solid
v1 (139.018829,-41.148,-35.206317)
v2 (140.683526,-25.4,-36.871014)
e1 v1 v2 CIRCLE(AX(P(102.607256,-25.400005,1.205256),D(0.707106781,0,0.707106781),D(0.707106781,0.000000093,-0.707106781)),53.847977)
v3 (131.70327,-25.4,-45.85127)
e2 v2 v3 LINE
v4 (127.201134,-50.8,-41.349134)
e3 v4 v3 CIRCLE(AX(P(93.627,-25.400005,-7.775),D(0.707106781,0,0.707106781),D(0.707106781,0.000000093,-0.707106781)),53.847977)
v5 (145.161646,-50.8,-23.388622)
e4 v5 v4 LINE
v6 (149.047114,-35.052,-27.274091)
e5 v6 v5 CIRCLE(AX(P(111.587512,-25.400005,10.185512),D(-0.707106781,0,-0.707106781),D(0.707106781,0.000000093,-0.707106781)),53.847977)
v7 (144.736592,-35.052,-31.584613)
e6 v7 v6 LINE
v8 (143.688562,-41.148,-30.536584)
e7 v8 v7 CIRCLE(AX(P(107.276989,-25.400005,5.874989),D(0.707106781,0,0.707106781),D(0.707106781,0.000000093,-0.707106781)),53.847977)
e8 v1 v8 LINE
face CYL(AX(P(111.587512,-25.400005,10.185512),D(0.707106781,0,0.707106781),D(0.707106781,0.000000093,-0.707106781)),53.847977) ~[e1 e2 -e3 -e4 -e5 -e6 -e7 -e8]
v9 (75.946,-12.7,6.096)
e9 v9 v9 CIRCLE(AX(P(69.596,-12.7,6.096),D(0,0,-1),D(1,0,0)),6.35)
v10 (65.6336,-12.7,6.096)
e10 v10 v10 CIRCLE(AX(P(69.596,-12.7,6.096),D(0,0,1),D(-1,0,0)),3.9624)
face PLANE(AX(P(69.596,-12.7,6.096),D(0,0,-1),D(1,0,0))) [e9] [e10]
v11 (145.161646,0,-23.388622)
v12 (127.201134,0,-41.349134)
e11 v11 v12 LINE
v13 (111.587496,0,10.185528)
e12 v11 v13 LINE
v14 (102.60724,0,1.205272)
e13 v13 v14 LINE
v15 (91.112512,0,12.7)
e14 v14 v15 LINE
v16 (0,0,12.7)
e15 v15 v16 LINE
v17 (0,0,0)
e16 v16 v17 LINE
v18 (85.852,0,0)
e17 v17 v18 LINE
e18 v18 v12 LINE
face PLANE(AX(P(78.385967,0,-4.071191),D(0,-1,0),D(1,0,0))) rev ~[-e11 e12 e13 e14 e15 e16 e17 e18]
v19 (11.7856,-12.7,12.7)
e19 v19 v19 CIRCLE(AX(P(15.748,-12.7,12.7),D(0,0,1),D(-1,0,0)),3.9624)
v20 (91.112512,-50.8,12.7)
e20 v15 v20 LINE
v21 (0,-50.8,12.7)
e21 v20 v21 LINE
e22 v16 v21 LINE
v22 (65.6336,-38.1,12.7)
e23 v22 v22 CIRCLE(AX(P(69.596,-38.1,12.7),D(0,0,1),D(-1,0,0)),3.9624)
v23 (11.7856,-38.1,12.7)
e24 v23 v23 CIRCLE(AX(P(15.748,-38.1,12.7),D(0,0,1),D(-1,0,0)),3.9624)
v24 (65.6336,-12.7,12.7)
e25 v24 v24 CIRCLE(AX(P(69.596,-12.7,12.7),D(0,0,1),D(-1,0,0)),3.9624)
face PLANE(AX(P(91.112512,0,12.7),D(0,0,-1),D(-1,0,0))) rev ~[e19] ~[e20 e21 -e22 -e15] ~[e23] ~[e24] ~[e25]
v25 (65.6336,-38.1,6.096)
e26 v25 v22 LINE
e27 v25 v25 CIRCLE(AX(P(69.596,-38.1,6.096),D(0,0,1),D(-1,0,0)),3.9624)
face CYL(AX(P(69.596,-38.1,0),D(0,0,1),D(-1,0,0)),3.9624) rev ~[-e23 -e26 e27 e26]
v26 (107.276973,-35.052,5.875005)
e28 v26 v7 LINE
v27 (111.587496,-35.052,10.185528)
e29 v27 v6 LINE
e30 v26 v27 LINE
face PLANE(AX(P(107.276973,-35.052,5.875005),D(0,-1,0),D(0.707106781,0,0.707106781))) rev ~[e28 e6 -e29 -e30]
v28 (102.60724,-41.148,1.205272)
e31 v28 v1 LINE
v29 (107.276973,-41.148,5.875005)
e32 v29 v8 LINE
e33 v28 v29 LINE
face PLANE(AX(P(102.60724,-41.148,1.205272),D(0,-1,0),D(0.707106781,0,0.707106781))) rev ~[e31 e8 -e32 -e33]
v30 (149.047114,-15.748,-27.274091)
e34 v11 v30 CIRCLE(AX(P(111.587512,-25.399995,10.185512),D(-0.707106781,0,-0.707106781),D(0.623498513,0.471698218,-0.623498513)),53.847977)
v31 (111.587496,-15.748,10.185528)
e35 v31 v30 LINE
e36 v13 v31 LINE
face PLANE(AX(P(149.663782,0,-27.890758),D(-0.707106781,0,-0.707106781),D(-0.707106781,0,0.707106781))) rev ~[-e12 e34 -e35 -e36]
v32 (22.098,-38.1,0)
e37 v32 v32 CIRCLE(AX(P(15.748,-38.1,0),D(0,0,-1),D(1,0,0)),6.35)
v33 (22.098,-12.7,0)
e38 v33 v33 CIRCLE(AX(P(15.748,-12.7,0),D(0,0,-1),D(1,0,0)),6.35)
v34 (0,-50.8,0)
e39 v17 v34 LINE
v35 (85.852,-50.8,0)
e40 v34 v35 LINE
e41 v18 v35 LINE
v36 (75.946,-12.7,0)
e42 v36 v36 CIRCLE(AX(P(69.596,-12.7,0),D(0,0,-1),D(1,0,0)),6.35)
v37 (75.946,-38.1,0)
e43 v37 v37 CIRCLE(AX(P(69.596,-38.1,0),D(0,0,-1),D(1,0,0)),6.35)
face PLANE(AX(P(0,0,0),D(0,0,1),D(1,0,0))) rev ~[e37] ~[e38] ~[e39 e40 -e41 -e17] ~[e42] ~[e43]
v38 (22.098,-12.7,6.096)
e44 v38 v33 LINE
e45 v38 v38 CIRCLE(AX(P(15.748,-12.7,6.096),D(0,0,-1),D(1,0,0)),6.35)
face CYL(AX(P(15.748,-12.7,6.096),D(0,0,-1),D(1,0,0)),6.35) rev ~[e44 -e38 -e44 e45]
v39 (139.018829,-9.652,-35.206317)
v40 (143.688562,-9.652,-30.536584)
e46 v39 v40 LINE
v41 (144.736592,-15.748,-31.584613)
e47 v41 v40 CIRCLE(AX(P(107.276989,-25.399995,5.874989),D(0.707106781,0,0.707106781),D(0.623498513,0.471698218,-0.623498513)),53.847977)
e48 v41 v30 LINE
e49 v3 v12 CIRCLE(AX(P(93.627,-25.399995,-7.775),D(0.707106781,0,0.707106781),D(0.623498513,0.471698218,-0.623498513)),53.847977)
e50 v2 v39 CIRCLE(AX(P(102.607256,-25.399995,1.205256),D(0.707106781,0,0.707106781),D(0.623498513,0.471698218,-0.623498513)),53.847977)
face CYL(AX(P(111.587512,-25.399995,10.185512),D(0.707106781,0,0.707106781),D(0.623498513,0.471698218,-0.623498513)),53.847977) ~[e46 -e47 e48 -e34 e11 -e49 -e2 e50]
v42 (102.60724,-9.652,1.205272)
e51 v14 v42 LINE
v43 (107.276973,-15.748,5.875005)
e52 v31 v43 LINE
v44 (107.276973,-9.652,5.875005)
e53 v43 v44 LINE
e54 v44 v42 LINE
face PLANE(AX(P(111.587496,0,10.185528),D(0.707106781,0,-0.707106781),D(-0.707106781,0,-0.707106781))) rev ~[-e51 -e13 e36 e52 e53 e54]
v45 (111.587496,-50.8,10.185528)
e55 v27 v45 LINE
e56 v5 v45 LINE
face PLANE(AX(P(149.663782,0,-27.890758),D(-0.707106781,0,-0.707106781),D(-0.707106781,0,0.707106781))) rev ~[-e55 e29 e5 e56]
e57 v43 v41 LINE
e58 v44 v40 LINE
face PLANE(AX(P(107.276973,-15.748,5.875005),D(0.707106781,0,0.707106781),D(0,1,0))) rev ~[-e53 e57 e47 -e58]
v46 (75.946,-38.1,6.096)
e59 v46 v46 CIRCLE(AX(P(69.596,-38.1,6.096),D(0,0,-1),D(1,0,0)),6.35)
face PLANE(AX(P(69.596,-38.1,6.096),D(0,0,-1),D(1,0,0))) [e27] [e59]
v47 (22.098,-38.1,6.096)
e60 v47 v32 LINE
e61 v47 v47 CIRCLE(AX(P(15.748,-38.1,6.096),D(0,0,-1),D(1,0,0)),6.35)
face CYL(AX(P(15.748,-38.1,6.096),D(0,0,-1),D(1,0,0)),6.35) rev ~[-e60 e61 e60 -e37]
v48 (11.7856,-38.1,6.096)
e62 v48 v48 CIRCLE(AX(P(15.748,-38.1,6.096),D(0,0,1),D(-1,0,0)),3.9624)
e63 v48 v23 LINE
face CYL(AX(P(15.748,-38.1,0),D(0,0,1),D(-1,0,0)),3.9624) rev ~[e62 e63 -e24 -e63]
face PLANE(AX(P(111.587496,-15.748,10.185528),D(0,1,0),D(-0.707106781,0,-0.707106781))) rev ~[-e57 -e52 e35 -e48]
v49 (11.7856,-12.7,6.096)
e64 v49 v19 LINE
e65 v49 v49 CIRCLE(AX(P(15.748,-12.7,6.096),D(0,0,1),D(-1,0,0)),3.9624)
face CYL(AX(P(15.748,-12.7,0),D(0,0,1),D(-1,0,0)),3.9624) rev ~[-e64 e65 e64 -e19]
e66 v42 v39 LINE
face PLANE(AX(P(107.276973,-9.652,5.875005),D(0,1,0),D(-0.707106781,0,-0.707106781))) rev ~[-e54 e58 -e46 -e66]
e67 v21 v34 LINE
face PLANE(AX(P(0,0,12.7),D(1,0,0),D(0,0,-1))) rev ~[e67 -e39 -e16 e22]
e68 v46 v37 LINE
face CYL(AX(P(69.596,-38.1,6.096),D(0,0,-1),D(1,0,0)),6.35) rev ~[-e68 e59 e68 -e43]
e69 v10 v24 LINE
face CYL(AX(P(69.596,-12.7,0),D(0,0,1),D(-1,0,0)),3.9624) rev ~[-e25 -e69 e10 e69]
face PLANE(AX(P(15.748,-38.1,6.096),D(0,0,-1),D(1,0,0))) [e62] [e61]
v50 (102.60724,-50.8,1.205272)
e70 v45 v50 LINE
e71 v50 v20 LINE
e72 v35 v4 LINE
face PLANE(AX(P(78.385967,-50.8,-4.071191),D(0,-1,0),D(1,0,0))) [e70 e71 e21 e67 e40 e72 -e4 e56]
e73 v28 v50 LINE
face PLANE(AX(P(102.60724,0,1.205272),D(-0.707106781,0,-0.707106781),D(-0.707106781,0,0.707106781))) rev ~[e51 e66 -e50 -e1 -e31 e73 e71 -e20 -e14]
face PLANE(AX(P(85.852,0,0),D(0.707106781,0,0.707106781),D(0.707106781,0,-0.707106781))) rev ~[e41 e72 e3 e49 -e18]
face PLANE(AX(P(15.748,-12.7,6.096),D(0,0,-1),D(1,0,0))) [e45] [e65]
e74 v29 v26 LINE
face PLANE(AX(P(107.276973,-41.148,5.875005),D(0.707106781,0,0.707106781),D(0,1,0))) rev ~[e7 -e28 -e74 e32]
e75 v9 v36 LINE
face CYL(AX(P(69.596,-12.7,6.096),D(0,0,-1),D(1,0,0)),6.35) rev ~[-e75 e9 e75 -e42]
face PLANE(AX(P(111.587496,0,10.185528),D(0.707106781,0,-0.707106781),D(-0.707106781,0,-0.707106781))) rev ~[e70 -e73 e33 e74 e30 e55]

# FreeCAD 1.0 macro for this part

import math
import FreeCAD as App
import Part
import Sketcher
from FreeCAD import Vector
Q = App.Units.Quantity

doc = App.newDocument("Part")
body = doc.addObject("PartDesign::Body", "Body")

# Sketch on XZ plane
sketch1 = body.newObject("Sketcher::SketchObject", "Sketch")
sketch1.AttachmentSupport = (doc.getObject("XZ_Plane"), [""])
sketch1.MapMode = "FlatFace"
sketch1.addGeometry([
    Part.LineSegment(Vector(0, 12.7, 0), Vector(0, 0, 0)),  # 0
    Part.LineSegment(Vector(0, 0, 0), Vector(85.852, 0, 0)),  # 1
    Part.LineSegment(Vector(85.852, 0, 0), Vector(131.70327, -45.85127, 0)),  # 2
    Part.LineSegment(Vector(131.70327, -45.85127, 0), Vector(149.663782, -27.890758, 0)),  # 3
    Part.LineSegment(Vector(149.663782, -27.890758, 0), Vector(111.587496, 10.185528, 0)),  # 4
    Part.LineSegment(Vector(111.587496, 10.185528, 0), Vector(102.60724, 1.205272, 0)),  # 5
    Part.LineSegment(Vector(102.60724, 1.205272, 0), Vector(91.112512, 12.7, 0)),  # 6
    Part.LineSegment(Vector(91.112512, 12.7, 0), Vector(0, 12.7, 0)),  # 7
], False)
sketch1.addConstraint([
    Sketcher.Constraint("Coincident", 0, 2, 1, 1),
    Sketcher.Constraint("Coincident", 1, 2, 2, 1),
    Sketcher.Constraint("Coincident", 2, 2, 3, 1),
    Sketcher.Constraint("Coincident", 3, 2, 4, 1),
    Sketcher.Constraint("Coincident", 4, 2, 5, 1),
    Sketcher.Constraint("Coincident", 5, 2, 6, 1),
    Sketcher.Constraint("Coincident", 6, 2, 7, 1),
    Sketcher.Constraint("Coincident", 7, 2, 0, 1),
    Sketcher.Constraint("Vertical", 0),
    Sketcher.Constraint("Horizontal", 1),
    Sketcher.Constraint("Horizontal", 7),
    Sketcher.Constraint("Coincident", 0, 2, -1, 1),
    Sketcher.Constraint("Perpendicular", 2, 3),
    Sketcher.Constraint("Perpendicular", 3, 4),
    Sketcher.Constraint("Perpendicular", 4, 5),
    Sketcher.Constraint("Perpendicular", 5, 6),
    Sketcher.Constraint("Distance", 3, Q("1 in")),
    Sketcher.Constraint("DistanceY", 0, 2, 0, 1, Q("0.5 in")),
    Sketcher.Constraint("Angle", 2, Q("-45 deg")),
    Sketcher.Constraint("Distance", 5, Q("0.5 in")),
    Sketcher.Constraint("DistanceX", 1, 1, 1, 2, Q("3.38 in")),
    Sketcher.Constraint("Distance", 4, Q("2.12 in")),
    Sketcher.Constraint("Distance", 6, Q("0.64 in")),
])
pad1 = body.newObject("PartDesign::Pad", "Pad")
pad1.Profile = sketch1
pad1.Length = Q("2 in")

# Sketch on an angled plane
sketch2 = body.newObject("Sketcher::SketchObject", "Sketch001")
sketch2.Placement = App.Placement(Vector(60.886512, 0, 60.886512), App.Rotation(Vector(0.707106781, 0, -0.707106781), Vector(0, 0.999999999, 0), Vector(0.707106781, 0, 0.707106781), "ZXY"))
sketch2.addGeometry([
    Part.ArcOfCircle(Part.Circle(Vector(71.702042, -25.399995, 0), Vector(0, 0, 1), 53.847977), math.radians(-0.000005), math.radians(28.144588)),  # 0
    Part.LineSegment(Vector(125.550019, -25.4, 0), Vector(125.550019, 0, 0)),  # 1
    Part.LineSegment(Vector(125.550019, 0, 0), Vector(119.183037, 0, 0)),  # 2
    Part.ArcOfCircle(Part.Circle(Vector(71.702042, -25.400005, 0), Vector(0, 0, 1), 53.847977), math.radians(-28.144588), math.radians(0.000005)),  # 3
    Part.LineSegment(Vector(119.183037, -50.8, 0), Vector(125.550019, -50.8, 0)),  # 4
    Part.LineSegment(Vector(125.550019, -50.8, 0), Vector(125.550019, -25.4, 0)),  # 5
], False)
sketch2.addConstraint([
    Sketcher.Constraint("Tangent", 0, 1, 1, 1),
    Sketcher.Constraint("Coincident", 1, 2, 2, 1),
    Sketcher.Constraint("Coincident", 2, 2, 0, 2),
    Sketcher.Constraint("Coincident", 3, 1, 4, 1),
    Sketcher.Constraint("Coincident", 4, 2, 5, 1),
    Sketcher.Constraint("Tangent", 5, 2, 3, 2),
    Sketcher.Constraint("Vertical", 1),
    Sketcher.Constraint("Horizontal", 2),
    Sketcher.Constraint("Horizontal", 4),
    Sketcher.Constraint("Vertical", 5),
    Sketcher.Constraint("Coincident", 3, 3, 0, 3),
    Sketcher.Constraint("Equal", 0, 3),
    Sketcher.Constraint("PointOnObject", 1, 2, -1),
    Sketcher.Constraint("Vertical", 2, 2, 3, 1),
    Sketcher.Constraint("DistanceY", 1, 1, 1, 2, Q("1 in")),
    Sketcher.Constraint("Radius", 0, Q("53.847977 mm")),
    Sketcher.Constraint("DistanceX", -1, 1, 0, 3, Q("71.702042 mm")),
])
pocket1 = body.newObject("PartDesign::Pocket", "Pocket")
pocket1.Profile = sketch2
pocket1.Length = Q("2 in")

# Sketch on an angled plane
sketch3 = body.newObject("Sketcher::SketchObject", "Sketch002")
sketch3.Placement = App.Placement(Vector(50.700984, 0, -50.700984), App.Rotation(Vector(0, -1, 0), Vector(0.707106781, 0, 0.707106781), Vector(-0.707106781, 0, 0.707106781), "ZXY"))
sketch3.addGeometry([
    Part.LineSegment(Vector(9.652, 80.010531, 0), Vector(9.652, 73.406531, 0)),  # 0
    Part.LineSegment(Vector(9.652, 73.406531, 0), Vector(41.148, 73.406531, 0)),  # 1
    Part.LineSegment(Vector(41.148, 73.406531, 0), Vector(41.148, 80.010531, 0)),  # 2
    Part.LineSegment(Vector(41.148, 80.010531, 0), Vector(35.052, 80.010531, 0)),  # 3
    Part.LineSegment(Vector(35.052, 80.010531, 0), Vector(35.052, 86.106531, 0)),  # 4
    Part.LineSegment(Vector(35.052, 86.106531, 0), Vector(15.748, 86.106531, 0)),  # 5
    Part.LineSegment(Vector(15.748, 86.106531, 0), Vector(15.748, 80.010531, 0)),  # 6
    Part.LineSegment(Vector(15.748, 80.010531, 0), Vector(9.652, 80.010531, 0)),  # 7
], False)
sketch3.addConstraint([
    Sketcher.Constraint("Coincident", 0, 2, 1, 1),
    Sketcher.Constraint("Coincident", 1, 2, 2, 1),
    Sketcher.Constraint("Coincident", 2, 2, 3, 1),
    Sketcher.Constraint("Coincident", 3, 2, 4, 1),
    Sketcher.Constraint("Coincident", 4, 2, 5, 1),
    Sketcher.Constraint("Coincident", 5, 2, 6, 1),
    Sketcher.Constraint("Coincident", 6, 2, 7, 1),
    Sketcher.Constraint("Coincident", 7, 2, 0, 1),
    Sketcher.Constraint("Vertical", 0),
    Sketcher.Constraint("Horizontal", 1),
    Sketcher.Constraint("Vertical", 2),
    Sketcher.Constraint("Horizontal", 3),
    Sketcher.Constraint("Vertical", 4),
    Sketcher.Constraint("Horizontal", 5),
    Sketcher.Constraint("Vertical", 6),
    Sketcher.Constraint("Horizontal", 7),
    Sketcher.Constraint("Horizontal", 3, 2, 6, 2),
    Sketcher.Constraint("Equal", 3, 7),
    Sketcher.Constraint("Equal", 7, 4),
    Sketcher.Constraint("DistanceX", 0, 2, 3, 2, Q("1 in")),
    Sketcher.Constraint("DistanceX", 1, 1, 1, 2, Q("1.24 in")),
    Sketcher.Constraint("DistanceY", 0, 2, 0, 1, Q("0.26 in")),
    Sketcher.Constraint("DistanceX", -1, 1, 0, 2, Q("0.38 in")),
    Sketcher.Constraint("DistanceY", -1, 1, 0, 2, Q("73.406531 mm")),
])
pocket2 = body.newObject("PartDesign::Pocket", "Pocket001")
pocket2.Profile = sketch3
pocket2.Length = Q("2.12 in")

# Sketch on XY plane
sketch4 = body.newObject("Sketcher::SketchObject", "Sketch003")
sketch4.AttachmentSupport = (doc.getObject("XY_Plane"), [""])
sketch4.MapMode = "FlatFace"
sketch4.addGeometry([
    Part.Circle(Vector(15.748, -38.1, 0), Vector(0, 0, 1), 3.9624),
    Part.Circle(Vector(15.748, -12.7, 0), Vector(0, 0, 1), 3.9624),
    Part.Circle(Vector(69.596, -12.7, 0), Vector(0, 0, 1), 3.9624),
    Part.Circle(Vector(69.596, -38.1, 0), Vector(0, 0, 1), 3.9624),
], False)
sketch4.addConstraint([
    Sketcher.Constraint("Equal", 0, 1),
    Sketcher.Constraint("Equal", 1, 2),
    Sketcher.Constraint("Equal", 2, 3),
    Sketcher.Constraint("Horizontal", 1, 3, 2, 3),
    Sketcher.Constraint("Horizontal", 0, 3, 3, 3),
    Sketcher.Constraint("Vertical", 0, 3, 1, 3),
    Sketcher.Constraint("Vertical", 2, 3, 3, 3),
    Sketcher.Constraint("Diameter", 0, Q("0.312 in")),
    Sketcher.Constraint("DistanceY", 0, 3, 1, 3, Q("1 in")),
    Sketcher.Constraint("DistanceY", 0, 3, -1, 1, Q("1.5 in")),
    Sketcher.Constraint("DistanceX", -1, 1, 0, 3, Q("0.62 in")),
    Sketcher.Constraint("DistanceX", -1, 1, 2, 3, Q("2.74 in")),
])
doc.recompute()
hole = body.newObject("PartDesign::Hole", "Hole")
hole.Profile = sketch4
hole.ThreadType = "None"
hole.Diameter = Q("0.312 in")
hole.DepthType = "ThroughAll"
hole.HoleCutType = "Counterbore"
hole.HoleCutDiameter = Q("0.5 in")
hole.HoleCutDepth = Q("0.24 in")
hole.Reversed = True

doc.recompute()
